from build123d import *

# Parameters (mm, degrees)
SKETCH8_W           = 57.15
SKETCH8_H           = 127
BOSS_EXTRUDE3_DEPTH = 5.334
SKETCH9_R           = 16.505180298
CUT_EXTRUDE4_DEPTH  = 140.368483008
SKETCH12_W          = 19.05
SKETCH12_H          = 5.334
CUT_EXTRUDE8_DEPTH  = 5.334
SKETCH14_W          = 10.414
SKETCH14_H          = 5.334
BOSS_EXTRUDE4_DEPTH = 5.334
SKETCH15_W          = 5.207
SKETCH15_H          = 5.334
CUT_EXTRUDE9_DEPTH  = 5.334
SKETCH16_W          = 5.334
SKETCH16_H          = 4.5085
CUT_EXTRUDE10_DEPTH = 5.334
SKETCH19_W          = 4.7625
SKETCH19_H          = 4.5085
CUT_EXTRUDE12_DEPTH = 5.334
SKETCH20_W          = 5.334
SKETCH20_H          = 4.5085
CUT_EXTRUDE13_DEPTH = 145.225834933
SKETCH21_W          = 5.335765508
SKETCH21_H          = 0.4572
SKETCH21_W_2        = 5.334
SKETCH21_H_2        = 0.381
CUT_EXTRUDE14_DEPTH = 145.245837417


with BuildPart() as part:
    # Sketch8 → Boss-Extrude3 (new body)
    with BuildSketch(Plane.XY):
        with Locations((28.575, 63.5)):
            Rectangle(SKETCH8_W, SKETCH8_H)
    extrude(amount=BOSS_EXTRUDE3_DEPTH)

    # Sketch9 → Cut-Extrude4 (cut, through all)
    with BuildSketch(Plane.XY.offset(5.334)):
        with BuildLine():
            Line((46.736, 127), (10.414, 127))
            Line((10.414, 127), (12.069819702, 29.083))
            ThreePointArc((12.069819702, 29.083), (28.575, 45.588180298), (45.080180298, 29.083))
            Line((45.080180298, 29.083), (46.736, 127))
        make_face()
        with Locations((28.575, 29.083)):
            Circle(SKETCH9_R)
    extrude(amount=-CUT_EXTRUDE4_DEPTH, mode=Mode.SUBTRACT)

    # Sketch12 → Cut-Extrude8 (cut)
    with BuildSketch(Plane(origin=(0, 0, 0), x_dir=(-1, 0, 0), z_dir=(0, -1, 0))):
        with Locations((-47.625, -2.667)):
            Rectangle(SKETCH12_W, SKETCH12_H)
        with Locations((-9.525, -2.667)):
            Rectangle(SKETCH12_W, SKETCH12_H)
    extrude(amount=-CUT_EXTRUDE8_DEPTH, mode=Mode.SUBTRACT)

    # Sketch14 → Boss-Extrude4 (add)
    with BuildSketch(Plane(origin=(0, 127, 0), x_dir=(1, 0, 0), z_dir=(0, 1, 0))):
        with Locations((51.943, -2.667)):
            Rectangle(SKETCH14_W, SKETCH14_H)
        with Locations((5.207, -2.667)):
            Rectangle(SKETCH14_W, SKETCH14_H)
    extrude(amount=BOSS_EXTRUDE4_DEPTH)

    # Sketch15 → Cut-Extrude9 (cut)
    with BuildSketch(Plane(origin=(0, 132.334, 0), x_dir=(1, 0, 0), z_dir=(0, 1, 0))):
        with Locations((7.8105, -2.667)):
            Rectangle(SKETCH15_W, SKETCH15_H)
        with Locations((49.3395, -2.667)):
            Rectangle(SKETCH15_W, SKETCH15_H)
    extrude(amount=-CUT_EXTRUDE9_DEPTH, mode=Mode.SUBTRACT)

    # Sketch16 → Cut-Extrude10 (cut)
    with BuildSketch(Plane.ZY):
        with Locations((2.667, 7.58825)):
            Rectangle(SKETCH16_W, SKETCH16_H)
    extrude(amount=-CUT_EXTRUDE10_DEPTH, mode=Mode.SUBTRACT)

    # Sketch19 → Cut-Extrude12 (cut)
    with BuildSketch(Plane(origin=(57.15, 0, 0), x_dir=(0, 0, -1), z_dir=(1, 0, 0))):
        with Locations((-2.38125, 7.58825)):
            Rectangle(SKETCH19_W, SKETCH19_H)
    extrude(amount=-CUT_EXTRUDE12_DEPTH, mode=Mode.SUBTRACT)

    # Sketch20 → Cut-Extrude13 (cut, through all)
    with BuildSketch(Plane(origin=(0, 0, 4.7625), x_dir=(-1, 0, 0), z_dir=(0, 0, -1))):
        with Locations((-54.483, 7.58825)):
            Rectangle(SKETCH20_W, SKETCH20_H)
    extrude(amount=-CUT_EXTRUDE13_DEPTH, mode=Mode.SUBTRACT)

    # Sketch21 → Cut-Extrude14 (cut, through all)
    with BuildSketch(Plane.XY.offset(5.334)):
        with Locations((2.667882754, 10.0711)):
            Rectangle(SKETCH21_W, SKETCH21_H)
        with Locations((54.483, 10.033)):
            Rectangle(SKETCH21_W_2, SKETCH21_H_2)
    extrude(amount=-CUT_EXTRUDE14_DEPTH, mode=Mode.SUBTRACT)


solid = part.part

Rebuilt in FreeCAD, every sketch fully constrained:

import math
import FreeCAD as App
import Part
import Sketcher

V = App.Vector
Q = App.Units.Quantity


def add_polygon(sketch, points):
    """Adds a closed chain of lines whose ends are joined by coincident constraints."""
    first, n = sketch.GeometryCount, len(points)
    for a, b in zip(points, points[1:] + points[:1]):
        sketch.addGeometry(Part.LineSegment(App.Vector(*a, 0), App.Vector(*b, 0)), False)
    for i in range(n):
        sketch.addConstraint(Sketcher.Constraint("Coincident", first + i, 2, first + (i + 1) % n, 1))

doc = App.newDocument("Part")
params = doc.addObject("Spreadsheet::Sheet", "Params")
for row, (alias, value) in enumerate([
    ("sketch1_height", "5 in"),
    ("sketch1_width", "2.25 in"),
    ("pad1_length", "0.21 in"),
    ("sketch2_width", "1.43 in"),
    ("sketch3_width", "0.75 in"),
    ("sketch3_height", "0.21 in"),
    ("pocket2_length", "0.21 in"),
    ("sketch4_width", "0.41 in"),
    ("sketch4_height", "0.21 in"),
    ("pad2_length", "0.21 in"),
    ("sketch5_height", "0.21 in"),
    ("sketch5_width", "0.205 in"),
    ("pocket3_length", "0.21 in"),
    ("sketch6_height", "0.21 in"),
    ("pocket4_length", "0.21 in"),
    ("sketch7_height", "0.1875 in"),
    ("pocket5_length", "0.21 in"),
    ("sketch8_width", "0.21 in"),
    ("sketch9_width", "0.21 in"),
    ("sketch9_height", "0.018 in"),
    ("sketch9_height2", "0.015 in"),
], start=1):
    params.set(f"A{row}", alias)
    params.set(f"B{row}", "=" + value)
    params.setAlias(f"B{row}", alias)

body = doc.addObject("PartDesign::Body", "Body")

# Sketch on XY plane
sketch1 = doc.addObject("Sketcher::SketchObject", "Sketch")
body.addObject(sketch1)
sketch1.AttachmentSupport = (doc.XY_Plane, [""])
sketch1.MapMode = "FlatFace"
add_polygon(sketch1, [(0, 127), (0, 0), (57, 0), (57, 127)])  # lines 0-3
sketch1.addConstraint(Sketcher.Constraint("Vertical", 0))
sketch1.addConstraint(Sketcher.Constraint("Horizontal", 1))
sketch1.addConstraint(Sketcher.Constraint("Vertical", 2))
sketch1.addConstraint(Sketcher.Constraint("Horizontal", 3))
sketch1.addConstraint(Sketcher.Constraint("Coincident", 0, 2, -1, 1))
sketch1.addConstraint(Sketcher.Constraint("DistanceY", 0, 2, 0, 1, Q("5 in")))
sketch1.addConstraint(Sketcher.Constraint("DistanceX", 1, 1, 1, 2, Q("2.25 in")))
sketch1.setExpression("Constraints[9]", "Params.sketch1_height")
sketch1.setExpression("Constraints[10]", "Params.sketch1_width")
pad1 = doc.addObject("PartDesign::Pad", "Pad")
body.addObject(pad1)
pad1.Profile = sketch1
pad1.setExpression("Length", "Params.pad1_length")

# Sketch on XY plane
sketch2 = doc.addObject("Sketcher::SketchObject", "Sketch001")
body.addObject(sketch2)
sketch2.AttachmentSupport = (doc.XY_Plane, [""])
sketch2.MapMode = "FlatFace"
sketch2.AttachmentOffset = App.Placement(V(0, 0, 0.21 * 25.4), App.Rotation())
sketch2.addGeometry(Part.LineSegment(V(47, 127, 0), V(10, 127, 0)), False)
sketch2.addGeometry(Part.LineSegment(V(10, 127, 0), V(12, 29, 0)), False)
sketch2.addGeometry(Part.ArcOfCircle(Part.Circle(V(29, 29, 0), V(0, 0, 1), 17), math.radians(180), math.radians(360)), False)
sketch2.addGeometry(Part.LineSegment(V(45, 29, 0), V(47, 127, 0)), False)
sketch2.addConstraint(Sketcher.Constraint("Coincident", 0, 2, 1, 1))
sketch2.addConstraint(Sketcher.Constraint("Coincident", 1, 2, 2, 1))
sketch2.addConstraint(Sketcher.Constraint("Coincident", 2, 2, 3, 1))
sketch2.addConstraint(Sketcher.Constraint("Coincident", 3, 2, 0, 1))
sketch2.addConstraint(Sketcher.Constraint("Horizontal", 0))
sketch2.addConstraint(Sketcher.Constraint("Horizontal", 2, 3, 1, 2))
sketch2.addConstraint(Sketcher.Constraint("Horizontal", 1, 2, 2, 2))
sketch2.addConstraint(Sketcher.Constraint("Equal", 1, 3))
sketch2.addConstraint(Sketcher.Constraint("DistanceY", -1, 1, 0, 2, Q("5 in")))
sketch2.addConstraint(Sketcher.Constraint("DistanceX", 0, 2, 0, 1, Q("1.43 in")))
sketch2.addConstraint(Sketcher.Constraint("DistanceX", -1, 1, 0, 2, Q("0.41 in")))
sketch2.addConstraint(Sketcher.Constraint("DistanceY", -1, 1, 2, 3, Q("1.145 in")))
sketch2.addConstraint(Sketcher.Constraint("Radius", 2, Q("16.50518 mm")))
sketch2.setExpression("Constraints[9]", "Params.sketch2_width")
pocket1 = doc.addObject("PartDesign::Pocket", "Pocket")
body.addObject(pocket1)
pocket1.Profile = sketch2
pocket1.Type = "ThroughAll"

# Sketch on XZ plane
sketch3 = doc.addObject("Sketcher::SketchObject", "Sketch002")
body.addObject(sketch3)
sketch3.AttachmentSupport = (doc.XZ_Plane, [""])
sketch3.MapMode = "FlatFace"
add_polygon(sketch3, [(57, 0), (57, 5), (38, 5), (38, 0)])  # lines 0-3
add_polygon(sketch3, [(19, 0), (19, 5), (0, 5), (0, 0)])  # lines 4-7
sketch3.addConstraint(Sketcher.Constraint("Vertical", 0))
sketch3.addConstraint(Sketcher.Constraint("Horizontal", 1))
sketch3.addConstraint(Sketcher.Constraint("Vertical", 2))
sketch3.addConstraint(Sketcher.Constraint("Horizontal", 3))
sketch3.addConstraint(Sketcher.Constraint("Vertical", 4))
sketch3.addConstraint(Sketcher.Constraint("Horizontal", 5))
sketch3.addConstraint(Sketcher.Constraint("Vertical", 6))
sketch3.addConstraint(Sketcher.Constraint("Horizontal", 7))
sketch3.addConstraint(Sketcher.Constraint("Coincident", 6, 2, -1, 1))
sketch3.addConstraint(Sketcher.Constraint("PointOnObject", 2, 2, -1))
sketch3.addConstraint(Sketcher.Constraint("Horizontal", 1, 2, 4, 2))
sketch3.addConstraint(Sketcher.Constraint("Equal", 3, 5))
sketch3.addConstraint(Sketcher.Constraint("DistanceX", 1, 2, 1, 1, Q("0.75 in")))
sketch3.addConstraint(Sketcher.Constraint("DistanceY", 0, 1, 0, 2, Q("0.21 in")))
sketch3.addConstraint(Sketcher.Constraint("DistanceX", -1, 1, 1, 2, Q("1.5 in")))
sketch3.setExpression("Constraints[20]", "Params.sketch3_width")
sketch3.setExpression("Constraints[21]", "Params.sketch3_height")
pocket2 = doc.addObject("PartDesign::Pocket", "Pocket001")
body.addObject(pocket2)
pocket2.Profile = sketch3
pocket2.setExpression("Length", "Params.pocket2_length")

# Sketch on XZ plane
sketch4 = doc.addObject("Sketcher::SketchObject", "Sketch003")
body.addObject(sketch4)
sketch4.AttachmentSupport = (doc.XZ_Plane, [""])
sketch4.MapMode = "FlatFace"
sketch4.AttachmentOffset = App.Placement(V(0, 0, -5 * 25.4), App.Rotation())
add_polygon(sketch4, [(47, 0), (47, 5), (57, 5), (57, 0)])  # lines 0-3
add_polygon(sketch4, [(0, 0), (0, 5), (10, 5), (10, 0)])  # lines 4-7
sketch4.addConstraint(Sketcher.Constraint("Vertical", 0))
sketch4.addConstraint(Sketcher.Constraint("Horizontal", 1))
sketch4.addConstraint(Sketcher.Constraint("Vertical", 2))
sketch4.addConstraint(Sketcher.Constraint("Horizontal", 3))
sketch4.addConstraint(Sketcher.Constraint("Vertical", 4))
sketch4.addConstraint(Sketcher.Constraint("Horizontal", 5))
sketch4.addConstraint(Sketcher.Constraint("Vertical", 6))
sketch4.addConstraint(Sketcher.Constraint("Horizontal", 7))
sketch4.addConstraint(Sketcher.Constraint("Coincident", 7, 2, -1, 1))
sketch4.addConstraint(Sketcher.Constraint("PointOnObject", 2, 2, -1))
sketch4.addConstraint(Sketcher.Constraint("Horizontal", 1, 2, 4, 2))
sketch4.addConstraint(Sketcher.Constraint("Equal", 3, 5))
sketch4.addConstraint(Sketcher.Constraint("DistanceX", 1, 1, 1, 2, Q("0.41 in")))
sketch4.addConstraint(Sketcher.Constraint("DistanceY", 0, 1, 0, 2, Q("0.21 in")))
sketch4.addConstraint(Sketcher.Constraint("DistanceX", -1, 1, 0, 2, Q("1.84 in")))
sketch4.setExpression("Constraints[20]", "Params.sketch4_width")
sketch4.setExpression("Constraints[21]", "Params.sketch4_height")
pad2 = doc.addObject("PartDesign::Pad", "Pad001")
body.addObject(pad2)
pad2.Profile = sketch4
pad2.setExpression("Length", "Params.pad2_length")
pad2.Reversed = True

# Sketch on XZ plane
sketch5 = doc.addObject("Sketcher::SketchObject", "Sketch004")
body.addObject(sketch5)
sketch5.AttachmentSupport = (doc.XZ_Plane, [""])
sketch5.MapMode = "FlatFace"
sketch5.AttachmentOffset = App.Placement(V(0, 0, -5.21 * 25.4), App.Rotation())
add_polygon(sketch5, [(5, 0), (5, 5), (10, 5), (10, 0)])  # lines 0-3
add_polygon(sketch5, [(47, 0), (47, 5), (52, 5), (52, 0)])  # lines 4-7
sketch5.addConstraint(Sketcher.Constraint("Vertical", 0))
sketch5.addConstraint(Sketcher.Constraint("Horizontal", 1))
sketch5.addConstraint(Sketcher.Constraint("Vertical", 2))
sketch5.addConstraint(Sketcher.Constraint("Horizontal", 3))
sketch5.addConstraint(Sketcher.Constraint("Vertical", 4))
sketch5.addConstraint(Sketcher.Constraint("Horizontal", 5))
sketch5.addConstraint(Sketcher.Constraint("Vertical", 6))
sketch5.addConstraint(Sketcher.Constraint("Horizontal", 7))
sketch5.addConstraint(Sketcher.Constraint("PointOnObject", 2, 2, -1))
sketch5.addConstraint(Sketcher.Constraint("PointOnObject", 6, 2, -1))
sketch5.addConstraint(Sketcher.Constraint("Horizontal", 1, 2, 4, 2))
sketch5.addConstraint(Sketcher.Constraint("Equal", 3, 5))
sketch5.addConstraint(Sketcher.Constraint("DistanceY", 0, 1, 0, 2, Q("0.21 in")))
sketch5.addConstraint(Sketcher.Constraint("DistanceX", 1, 1, 1, 2, Q("0.205 in")))
sketch5.addConstraint(Sketcher.Constraint("DistanceX", -1, 1, 1, 2, Q("0.41 in")))
sketch5.addConstraint(Sketcher.Constraint("DistanceX", -1, 1, 4, 2, Q("1.84 in")))
sketch5.setExpression("Constraints[20]", "Params.sketch5_height")
sketch5.setExpression("Constraints[21]", "Params.sketch5_width")
pocket3 = doc.addObject("PartDesign::Pocket", "Pocket002")
body.addObject(pocket3)
pocket3.Profile = sketch5
pocket3.setExpression("Length", "Params.pocket3_length")
pocket3.Reversed = True

# Sketch on YZ plane
sketch6 = doc.addObject("Sketcher::SketchObject", "Sketch005")
body.addObject(sketch6)
sketch6.AttachmentSupport = (doc.YZ_Plane, [""])
sketch6.MapMode = "FlatFace"
add_polygon(sketch6, [(9.8, 0), (5.3, 0), (5.3, 5.3), (9.8, 5.3)])  # lines 0-3
sketch6.addConstraint(Sketcher.Constraint("Horizontal", 0))
sketch6.addConstraint(Sketcher.Constraint("Vertical", 1))
sketch6.addConstraint(Sketcher.Constraint("Horizontal", 2))
sketch6.addConstraint(Sketcher.Constraint("Vertical", 3))
sketch6.addConstraint(Sketcher.Constraint("PointOnObject", 0, 2, -1))
sketch6.addConstraint(Sketcher.Constraint("DistanceY", 1, 1, 1, 2, Q("0.21 in")))
sketch6.addConstraint(Sketcher.Constraint("DistanceX", -1, 1, 0, 2, Q("0.21 in")))
sketch6.addConstraint(Sketcher.Constraint("DistanceX", 0, 2, 0, 1, Q("0.1775 in")))
sketch6.setExpression("Constraints[9]", "Params.sketch6_height")
pocket4 = doc.addObject("PartDesign::Pocket", "Pocket003")
body.addObject(pocket4)
pocket4.Profile = sketch6
pocket4.setExpression("Length", "Params.pocket4_length")
pocket4.Reversed = True

# Sketch on YZ plane
sketch7 = doc.addObject("Sketcher::SketchObject", "Sketch006")
body.addObject(sketch7)
sketch7.AttachmentSupport = (doc.YZ_Plane, [""])
sketch7.MapMode = "FlatFace"
sketch7.AttachmentOffset = App.Placement(V(0, 0, 2.25 * 25.4), App.Rotation())
add_polygon(sketch7, [(9.8, 4.8), (5.3, 4.8), (5.3, 0), (9.8, 0)])  # lines 0-3
sketch7.addConstraint(Sketcher.Constraint("Horizontal", 0))
sketch7.addConstraint(Sketcher.Constraint("Vertical", 1))
sketch7.addConstraint(Sketcher.Constraint("Horizontal", 2))
sketch7.addConstraint(Sketcher.Constraint("Vertical", 3))
sketch7.addConstraint(Sketcher.Constraint("PointOnObject", 1, 2, -1))
sketch7.addConstraint(Sketcher.Constraint("DistanceY", 1, 2, 1, 1, Q("0.1875 in")))
sketch7.addConstraint(Sketcher.Constraint("DistanceX", -1, 1, 0, 2, Q("0.21 in")))
sketch7.addConstraint(Sketcher.Constraint("DistanceX", 0, 2, 0, 1, Q("0.1775 in")))
sketch7.setExpression("Constraints[9]", "Params.sketch7_height")
pocket5 = doc.addObject("PartDesign::Pocket", "Pocket004")
body.addObject(pocket5)
pocket5.Profile = sketch7
pocket5.setExpression("Length", "Params.pocket5_length")

# Sketch on XY plane
sketch8 = doc.addObject("Sketcher::SketchObject", "Sketch007")
body.addObject(sketch8)
sketch8.AttachmentSupport = (doc.XY_Plane, [""])
sketch8.MapMode = "FlatFace"
sketch8.AttachmentOffset = App.Placement(V(0, 0, 0.1875 * 25.4), App.Rotation())
add_polygon(sketch8, [(57.1, 9.8), (57.1, 5.3), (51.8, 5.3), (51.8, 9.8)])  # lines 0-3
sketch8.addConstraint(Sketcher.Constraint("Vertical", 0))
sketch8.addConstraint(Sketcher.Constraint("Horizontal", 1))
sketch8.addConstraint(Sketcher.Constraint("Vertical", 2))
sketch8.addConstraint(Sketcher.Constraint("Horizontal", 3))
sketch8.addConstraint(Sketcher.Constraint("DistanceX", 1, 2, 1, 1, Q("0.21 in")))
sketch8.addConstraint(Sketcher.Constraint("DistanceX", -1, 1, 0, 2, Q("2.25 in")))
sketch8.addConstraint(Sketcher.Constraint("DistanceY", -1, 1, 0, 2, Q("0.21 in")))
sketch8.addConstraint(Sketcher.Constraint("DistanceY", 0, 2, 0, 1, Q("0.1775 in")))
sketch8.setExpression("Constraints[8]", "Params.sketch8_width")
pocket6 = doc.addObject("PartDesign::Pocket", "Pocket005")
body.addObject(pocket6)
pocket6.Profile = sketch8
pocket6.Type = "ThroughAll"
pocket6.Reversed = True

# Sketch on XY plane
sketch9 = doc.addObject("Sketcher::SketchObject", "Sketch008")
body.addObject(sketch9)
sketch9.AttachmentSupport = (doc.XY_Plane, [""])
sketch9.MapMode = "FlatFace"
sketch9.AttachmentOffset = App.Placement(V(0, 0, 0.21 * 25.4), App.Rotation())
add_polygon(sketch9, [(0, 10.3), (0, 9.84), (5.34, 9.84), (5.34, 10.3)])  # lines 0-3
add_polygon(sketch9, [(51.82, 10.22), (51.82, 9.84), (57.15, 9.84), (57.15, 10.22)])  # lines 4-7
sketch9.addConstraint(Sketcher.Constraint("Vertical", 0))
sketch9.addConstraint(Sketcher.Constraint("Horizontal", 1))
sketch9.addConstraint(Sketcher.Constraint("Vertical", 2))
sketch9.addConstraint(Sketcher.Constraint("Horizontal", 3))
sketch9.addConstraint(Sketcher.Constraint("Vertical", 4))
sketch9.addConstraint(Sketcher.Constraint("Horizontal", 5))
sketch9.addConstraint(Sketcher.Constraint("Vertical", 6))
sketch9.addConstraint(Sketcher.Constraint("Horizontal", 7))
sketch9.addConstraint(Sketcher.Constraint("PointOnObject", 0, 2, -2))
sketch9.addConstraint(Sketcher.Constraint("Horizontal", 1, 2, 4, 2))
sketch9.addConstraint(Sketcher.Constraint("DistanceX", 5, 1, 5, 2, Q("0.21 in")))
sketch9.addConstraint(Sketcher.Constraint("DistanceY", 0, 2, 0, 1, Q("0.018 in")))
sketch9.addConstraint(Sketcher.Constraint("DistanceY", 4, 2, 4, 1, Q("0.015 in")))
sketch9.addConstraint(Sketcher.Constraint("DistanceX", -1, 1, 4, 2, Q("2.04 in")))
sketch9.addConstraint(Sketcher.Constraint("DistanceY", -1, 1, 0, 2, Q("0.3875 in")))
sketch9.addConstraint(Sketcher.Constraint("DistanceX", 1, 1, 1, 2, Q("5.335766 mm")))
sketch9.setExpression("Constraints[18]", "Params.sketch9_width")
sketch9.setExpression("Constraints[19]", "Params.sketch9_height")
sketch9.setExpression("Constraints[20]", "Params.sketch9_height2")
pocket7 = doc.addObject("PartDesign::Pocket", "Pocket006")
body.addObject(pocket7)
pocket7.Profile = sketch9
pocket7.Type = "ThroughAll"

doc.recompute()
